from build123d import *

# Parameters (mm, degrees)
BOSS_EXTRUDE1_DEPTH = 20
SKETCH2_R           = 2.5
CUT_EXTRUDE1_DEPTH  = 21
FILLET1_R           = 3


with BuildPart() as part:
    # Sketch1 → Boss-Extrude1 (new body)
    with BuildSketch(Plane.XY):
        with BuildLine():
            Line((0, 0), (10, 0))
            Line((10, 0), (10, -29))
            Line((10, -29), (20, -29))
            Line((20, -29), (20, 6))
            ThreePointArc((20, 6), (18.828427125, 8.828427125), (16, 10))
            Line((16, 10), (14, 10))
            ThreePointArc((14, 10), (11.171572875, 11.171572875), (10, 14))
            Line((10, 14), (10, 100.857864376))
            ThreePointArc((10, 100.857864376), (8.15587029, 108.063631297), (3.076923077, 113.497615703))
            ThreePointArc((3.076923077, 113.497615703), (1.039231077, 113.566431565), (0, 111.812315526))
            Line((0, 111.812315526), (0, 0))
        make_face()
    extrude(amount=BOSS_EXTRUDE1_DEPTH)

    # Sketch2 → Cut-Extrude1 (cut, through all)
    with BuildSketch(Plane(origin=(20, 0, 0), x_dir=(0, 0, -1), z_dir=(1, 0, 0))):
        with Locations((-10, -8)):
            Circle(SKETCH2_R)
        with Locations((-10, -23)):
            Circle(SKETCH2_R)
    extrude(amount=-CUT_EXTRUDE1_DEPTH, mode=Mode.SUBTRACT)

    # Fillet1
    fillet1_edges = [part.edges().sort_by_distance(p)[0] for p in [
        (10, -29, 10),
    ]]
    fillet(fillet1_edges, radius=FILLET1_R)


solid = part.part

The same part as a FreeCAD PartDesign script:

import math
import FreeCAD as App
import Part
import Sketcher

V = App.Vector
Q = App.Units.Quantity


def edges_at(feature, points):
    """Names of the edges that pass closest to the given points."""
    edges = feature.Shape.Edges
    near = lambda p: min(range(len(edges)), key=lambda i: edges[i].distToShape(Part.Vertex(*p))[0])
    return sorted({f"Edge{near(p) + 1}" for p in points})

doc = App.newDocument("Part")
body = doc.addObject("PartDesign::Body", "Body")

# Sketch on XY plane
sketch1 = doc.addObject("Sketcher::SketchObject", "Sketch")
body.addObject(sketch1)
sketch1.AttachmentSupport = (doc.XY_Plane, [""])
sketch1.MapMode = "FlatFace"
sketch1.addGeometry([
    Part.LineSegment(V(0, 0, 0), V(10, 0, 0)),  # 0
    Part.LineSegment(V(10, 0, 0), V(10, -29, 0)),  # 1
    Part.LineSegment(V(10, -29, 0), V(20, -29, 0)),  # 2
    Part.LineSegment(V(20, -29, 0), V(20, 6, 0)),  # 3
    Part.ArcOfCircle(Part.Circle(V(16, 6, 0), V(0, 0, 1), 4), math.radians(0), math.radians(90)),  # 4
    Part.LineSegment(V(16, 10, 0), V(14, 10, 0)),  # 5
    Part.ArcOfCircle(Part.Circle(V(14, 14, 0), V(0, 0, 1), 4), math.radians(180), math.radians(270)),  # 6
    Part.LineSegment(V(10, 14, 0), V(10, 100.9, 0)),  # 7
    Part.ArcOfCircle(Part.Circle(V(-5, 100.9, 0), V(0, 0, 1), 15), math.radians(0), math.radians(57)),  # 8
    Part.ArcOfCircle(Part.Circle(V(2, 111.8, 0), V(0, 0, 1), 2), math.radians(57), math.radians(180)),  # 9
    Part.LineSegment(V(0, 111.8, 0), V(0, 0, 0)),  # 10
], False)
sketch1.addConstraint([
    Sketcher.Constraint("Coincident", 0, 2, 1, 1),
    Sketcher.Constraint("Coincident", 1, 2, 2, 1),
    Sketcher.Constraint("Coincident", 2, 2, 3, 1),
    Sketcher.Constraint("Tangent", 3, 2, 4, 1),
    Sketcher.Constraint("Tangent", 4, 2, 5, 1),
    Sketcher.Constraint("Tangent", 5, 2, 6, 2),
    Sketcher.Constraint("Tangent", 6, 1, 7, 1),
    Sketcher.Constraint("Tangent", 7, 2, 8, 1),
    Sketcher.Constraint("Tangent", 8, 2, 9, 1),
    Sketcher.Constraint("Tangent", 9, 2, 10, 1),
    Sketcher.Constraint("Coincident", 10, 2, 0, 1),
    Sketcher.Constraint("Horizontal", 0),
    Sketcher.Constraint("Vertical", 1),
    Sketcher.Constraint("Horizontal", 2),
    Sketcher.Constraint("Vertical", 3),
    Sketcher.Constraint("Horizontal", 5),
    Sketcher.Constraint("Vertical", 7),
    Sketcher.Constraint("Vertical", 10),
    Sketcher.Constraint("Coincident", 10, 2, -1, 1),
    Sketcher.Constraint("Equal", 4, 6),
    Sketcher.Constraint("Vertical", 1, 2, 6, 1),
    Sketcher.Constraint("Equal", 0, 2),
    Sketcher.Constraint("Radius", 4, Q("4 mm")),
    Sketcher.Constraint("Radius", 8, Q("15 mm")),
    Sketcher.Constraint("Radius", 9, Q("2 mm")),
    Sketcher.Constraint("DistanceX", 0, 1, 0, 2, Q("10 mm")),
    Sketcher.Constraint("DistanceY", 1, 2, 1, 1, Q("29 mm")),
    Sketcher.Constraint("DistanceY", 3, 1, 3, 2, Q("35 mm")),
    Sketcher.Constraint("DistanceY", 7, 1, 7, 2, Q("86.857864 mm")),
])
pad1 = doc.addObject("PartDesign::Pad", "Pad")
body.addObject(pad1)
pad1.Profile = sketch1
pad1.Length = 20

# Sketch on YZ plane
sketch2 = doc.addObject("Sketcher::SketchObject", "Sketch001")
body.addObject(sketch2)
sketch2.AttachmentSupport = (doc.YZ_Plane, [""])
sketch2.MapMode = "FlatFace"
sketch2.AttachmentOffset = App.Placement(V(0, 0, 20), App.Rotation())
sketch2.addGeometry([
    Part.Circle(V(-8, 10, 0), V(0, 0, 1), 2.5),
    Part.Circle(V(-23, 10, 0), V(0, 0, 1), 2.5),
], False)
sketch2.addConstraint([
    Sketcher.Constraint("Equal", 0, 1),
    Sketcher.Constraint("Horizontal", 0, 3, 1, 3),
    Sketcher.Constraint("Diameter", 0, Q("5 mm")),
    Sketcher.Constraint("DistanceX", 0, 3, -1, 1, Q("8 mm")),
    Sketcher.Constraint("DistanceY", -1, 1, 0, 3, Q("10 mm")),
    Sketcher.Constraint("DistanceX", 1, 3, -1, 1, Q("23 mm")),
])
pocket1 = doc.addObject("PartDesign::Pocket", "Pocket")
body.addObject(pocket1)
pocket1.Profile = sketch2
pocket1.Type = "ThroughAll"
doc.recompute()

fillet = doc.addObject("PartDesign::Fillet", "Fillet")
body.addObject(fillet)
fillet.Base = (pocket1, edges_at(pocket1, [(10, -29, 10)]))
fillet.Radius = 3

doc.recompute()
